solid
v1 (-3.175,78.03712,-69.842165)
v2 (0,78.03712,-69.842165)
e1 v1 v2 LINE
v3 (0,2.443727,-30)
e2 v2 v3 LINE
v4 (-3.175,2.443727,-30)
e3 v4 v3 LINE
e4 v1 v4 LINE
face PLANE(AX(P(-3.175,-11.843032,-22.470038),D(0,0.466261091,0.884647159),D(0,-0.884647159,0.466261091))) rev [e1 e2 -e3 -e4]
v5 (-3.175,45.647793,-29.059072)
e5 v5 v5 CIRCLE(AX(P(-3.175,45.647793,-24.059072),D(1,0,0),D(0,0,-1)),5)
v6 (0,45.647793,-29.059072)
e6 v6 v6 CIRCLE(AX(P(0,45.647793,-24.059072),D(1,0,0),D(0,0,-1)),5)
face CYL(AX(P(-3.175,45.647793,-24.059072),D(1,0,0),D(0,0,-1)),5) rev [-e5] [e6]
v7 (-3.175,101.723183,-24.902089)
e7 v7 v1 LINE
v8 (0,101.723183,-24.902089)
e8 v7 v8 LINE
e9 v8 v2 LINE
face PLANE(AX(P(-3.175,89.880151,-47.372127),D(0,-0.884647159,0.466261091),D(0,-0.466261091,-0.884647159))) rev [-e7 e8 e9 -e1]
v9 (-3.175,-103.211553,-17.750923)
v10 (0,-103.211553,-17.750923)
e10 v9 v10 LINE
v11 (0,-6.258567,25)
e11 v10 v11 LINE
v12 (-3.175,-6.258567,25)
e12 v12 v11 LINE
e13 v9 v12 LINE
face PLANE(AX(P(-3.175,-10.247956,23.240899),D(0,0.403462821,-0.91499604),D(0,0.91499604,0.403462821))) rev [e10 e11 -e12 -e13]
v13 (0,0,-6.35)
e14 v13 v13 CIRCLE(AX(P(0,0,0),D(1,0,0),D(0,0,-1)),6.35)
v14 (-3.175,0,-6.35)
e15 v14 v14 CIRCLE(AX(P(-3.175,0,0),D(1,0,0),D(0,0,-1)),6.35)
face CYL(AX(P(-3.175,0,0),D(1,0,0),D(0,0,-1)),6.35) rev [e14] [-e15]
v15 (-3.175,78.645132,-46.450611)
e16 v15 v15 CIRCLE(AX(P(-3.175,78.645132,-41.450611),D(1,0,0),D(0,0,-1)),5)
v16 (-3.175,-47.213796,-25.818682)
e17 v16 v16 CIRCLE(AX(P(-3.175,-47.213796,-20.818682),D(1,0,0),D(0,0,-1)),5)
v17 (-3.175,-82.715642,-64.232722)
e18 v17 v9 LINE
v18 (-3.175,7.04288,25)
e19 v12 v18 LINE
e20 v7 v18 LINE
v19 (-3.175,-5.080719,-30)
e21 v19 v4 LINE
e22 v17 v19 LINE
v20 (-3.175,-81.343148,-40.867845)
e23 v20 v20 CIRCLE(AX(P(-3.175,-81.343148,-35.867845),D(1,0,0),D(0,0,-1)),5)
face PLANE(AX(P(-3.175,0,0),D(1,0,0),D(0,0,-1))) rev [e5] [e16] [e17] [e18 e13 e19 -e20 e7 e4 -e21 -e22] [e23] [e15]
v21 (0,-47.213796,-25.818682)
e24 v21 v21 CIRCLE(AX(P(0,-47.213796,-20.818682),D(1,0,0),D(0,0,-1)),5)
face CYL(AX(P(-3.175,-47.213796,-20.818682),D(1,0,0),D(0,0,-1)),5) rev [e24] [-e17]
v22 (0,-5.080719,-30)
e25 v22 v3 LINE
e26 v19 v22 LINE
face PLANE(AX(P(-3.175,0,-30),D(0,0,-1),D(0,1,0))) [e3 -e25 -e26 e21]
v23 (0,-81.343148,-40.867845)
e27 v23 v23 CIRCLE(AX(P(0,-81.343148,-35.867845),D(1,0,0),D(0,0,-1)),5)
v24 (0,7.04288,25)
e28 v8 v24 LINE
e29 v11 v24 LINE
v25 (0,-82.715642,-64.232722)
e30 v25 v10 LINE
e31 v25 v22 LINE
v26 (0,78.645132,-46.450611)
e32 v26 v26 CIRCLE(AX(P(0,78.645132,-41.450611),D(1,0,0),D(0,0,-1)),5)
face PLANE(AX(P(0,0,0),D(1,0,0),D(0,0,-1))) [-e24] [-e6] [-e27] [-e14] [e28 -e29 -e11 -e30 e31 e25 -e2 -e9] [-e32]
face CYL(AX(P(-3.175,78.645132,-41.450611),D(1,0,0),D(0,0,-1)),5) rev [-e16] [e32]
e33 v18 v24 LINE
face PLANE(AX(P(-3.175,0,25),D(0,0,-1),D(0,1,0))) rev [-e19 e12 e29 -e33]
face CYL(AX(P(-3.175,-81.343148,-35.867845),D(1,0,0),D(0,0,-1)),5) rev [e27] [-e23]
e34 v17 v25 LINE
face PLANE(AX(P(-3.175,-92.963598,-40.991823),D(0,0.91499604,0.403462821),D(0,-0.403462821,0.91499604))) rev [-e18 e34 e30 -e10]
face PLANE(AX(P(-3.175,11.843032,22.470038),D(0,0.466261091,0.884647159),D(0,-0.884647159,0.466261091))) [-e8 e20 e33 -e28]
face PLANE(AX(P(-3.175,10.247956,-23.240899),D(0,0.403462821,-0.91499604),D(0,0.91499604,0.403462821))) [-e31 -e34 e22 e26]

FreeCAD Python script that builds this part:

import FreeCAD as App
import Part
import Sketcher
from FreeCAD import Vector
Q = App.Units.Quantity


def add_polygon(sketch, points):
    """Adds a closed chain of lines whose ends are joined by coincident constraints."""
    first, n = sketch.GeometryCount, len(points)
    for a, b in zip(points, points[1:] + points[:1]):
        sketch.addGeometry(Part.LineSegment(App.Vector(*a, 0), App.Vector(*b, 0)), False)
    for i in range(n):
        sketch.addConstraint(Sketcher.Constraint("Coincident", first + i, 2, first + (i + 1) % n, 1))

doc = App.newDocument("Part")
body = doc.addObject("PartDesign::Body", "Body")

sketch1 = doc.addObject("Sketcher::SketchObject", "Sketch")
body.addObject(sketch1)
sketch1.AttachmentSupport = (doc.YZ_Plane, [""])
sketch1.MapMode = "FlatFace"
add_polygon(sketch1, [(-83, -64), (-5, -30), (2, -30), (78, -70), (90, -47), (102, -25), (7, 25), (-6, 25), (-103, -18)])
sketch1.addGeometry(Part.Circle(Vector(-81, -36, 0), Vector(0, 0, 1), 5), False)
sketch1.addGeometry(Part.Circle(Vector(-47, -21, 0), Vector(0, 0, 1), 5), False)
sketch1.addGeometry(Part.Circle(Vector(79, -41, 0), Vector(0, 0, 1), 5), False)
sketch1.addGeometry(Part.Circle(Vector(46, -24, 0), Vector(0, 0, 1), 5), False)
sketch1.addGeometry(Part.Circle(Vector(0, 0, 0), Vector(0, 0, 1), 6), False)
sketch1.addConstraint([
    Sketcher.Constraint("Horizontal", 1),
    Sketcher.Constraint("Horizontal", 6),
    Sketcher.Constraint("Coincident", 13, 3, -1, 1),
    Sketcher.Constraint("Equal", 9, 10),
    Sketcher.Constraint("Equal", 10, 11),
    Sketcher.Constraint("Equal", 11, 12),
    Sketcher.Constraint("Perpendicular", 2, 3),
    Sketcher.Constraint("Parallel", 3, 4),
    Sketcher.Constraint("Perpendicular", 4, 5),
    Sketcher.Constraint("Parallel", 0, 7),
    Sketcher.Constraint("Perpendicular", 7, 8),
    Sketcher.Constraint("Equal", 3, 4),
    Sketcher.Constraint("Diameter", 13, Q("0.5 in")),
    Sketcher.Constraint("Distance", 3, Q("1 in")),
    Sketcher.Constraint("Distance", 8, Q("2 in")),
    Sketcher.Constraint("Diameter", 9, 10.0),
    Sketcher.Constraint("DistanceY", 0, 2, -1, 1, 30.0),
    Sketcher.Constraint("DistanceY", -1, 1, 5, 2, 25.0),
    Sketcher.Constraint("DistanceX", 0, 2, 5, 2, 12.123599),
    Sketcher.Constraint("DistanceY", 8, 2, 7, 2, 46.481799),
    Sketcher.Constraint("Distance", 2, 85.450331),
    Sketcher.Constraint("DistanceX", 1, 1, 1, 2, 7.524446),
    Sketcher.Constraint("DistanceY", 10, 3, -1, 1, 20.818682),
    Sketcher.Constraint("DistanceY", 11, 3, -1, 1, 41.450611),
    Sketcher.Constraint("DistanceX", 0, 2, -1, 1, 5.080719),
    Sketcher.Constraint("DistanceX", 8, 2, -1, 1, 82.715642),
    Sketcher.Constraint("DistanceX", 10, 3, 11, 3, 125.858928),
    Sketcher.Constraint("DistanceX", 9, 3, 11, 3, 159.98828),
    Sketcher.Constraint("DistanceX", 12, 3, 11, 3, 32.997339),
    Sketcher.Constraint("DistanceY", 11, 3, 12, 3, 17.391539),
    Sketcher.Constraint("DistanceX", 9, 3, 0, 2, 76.262429),
    Sketcher.Constraint("DistanceY", 9, 3, 7, 2, 18.116922),
])
pad1 = doc.addObject("PartDesign::Pad", "Pad")
body.addObject(pad1)
pad1.Profile = sketch1
pad1.Length = Q("0.125 in")
pad1.Reversed = True

doc.recompute()
